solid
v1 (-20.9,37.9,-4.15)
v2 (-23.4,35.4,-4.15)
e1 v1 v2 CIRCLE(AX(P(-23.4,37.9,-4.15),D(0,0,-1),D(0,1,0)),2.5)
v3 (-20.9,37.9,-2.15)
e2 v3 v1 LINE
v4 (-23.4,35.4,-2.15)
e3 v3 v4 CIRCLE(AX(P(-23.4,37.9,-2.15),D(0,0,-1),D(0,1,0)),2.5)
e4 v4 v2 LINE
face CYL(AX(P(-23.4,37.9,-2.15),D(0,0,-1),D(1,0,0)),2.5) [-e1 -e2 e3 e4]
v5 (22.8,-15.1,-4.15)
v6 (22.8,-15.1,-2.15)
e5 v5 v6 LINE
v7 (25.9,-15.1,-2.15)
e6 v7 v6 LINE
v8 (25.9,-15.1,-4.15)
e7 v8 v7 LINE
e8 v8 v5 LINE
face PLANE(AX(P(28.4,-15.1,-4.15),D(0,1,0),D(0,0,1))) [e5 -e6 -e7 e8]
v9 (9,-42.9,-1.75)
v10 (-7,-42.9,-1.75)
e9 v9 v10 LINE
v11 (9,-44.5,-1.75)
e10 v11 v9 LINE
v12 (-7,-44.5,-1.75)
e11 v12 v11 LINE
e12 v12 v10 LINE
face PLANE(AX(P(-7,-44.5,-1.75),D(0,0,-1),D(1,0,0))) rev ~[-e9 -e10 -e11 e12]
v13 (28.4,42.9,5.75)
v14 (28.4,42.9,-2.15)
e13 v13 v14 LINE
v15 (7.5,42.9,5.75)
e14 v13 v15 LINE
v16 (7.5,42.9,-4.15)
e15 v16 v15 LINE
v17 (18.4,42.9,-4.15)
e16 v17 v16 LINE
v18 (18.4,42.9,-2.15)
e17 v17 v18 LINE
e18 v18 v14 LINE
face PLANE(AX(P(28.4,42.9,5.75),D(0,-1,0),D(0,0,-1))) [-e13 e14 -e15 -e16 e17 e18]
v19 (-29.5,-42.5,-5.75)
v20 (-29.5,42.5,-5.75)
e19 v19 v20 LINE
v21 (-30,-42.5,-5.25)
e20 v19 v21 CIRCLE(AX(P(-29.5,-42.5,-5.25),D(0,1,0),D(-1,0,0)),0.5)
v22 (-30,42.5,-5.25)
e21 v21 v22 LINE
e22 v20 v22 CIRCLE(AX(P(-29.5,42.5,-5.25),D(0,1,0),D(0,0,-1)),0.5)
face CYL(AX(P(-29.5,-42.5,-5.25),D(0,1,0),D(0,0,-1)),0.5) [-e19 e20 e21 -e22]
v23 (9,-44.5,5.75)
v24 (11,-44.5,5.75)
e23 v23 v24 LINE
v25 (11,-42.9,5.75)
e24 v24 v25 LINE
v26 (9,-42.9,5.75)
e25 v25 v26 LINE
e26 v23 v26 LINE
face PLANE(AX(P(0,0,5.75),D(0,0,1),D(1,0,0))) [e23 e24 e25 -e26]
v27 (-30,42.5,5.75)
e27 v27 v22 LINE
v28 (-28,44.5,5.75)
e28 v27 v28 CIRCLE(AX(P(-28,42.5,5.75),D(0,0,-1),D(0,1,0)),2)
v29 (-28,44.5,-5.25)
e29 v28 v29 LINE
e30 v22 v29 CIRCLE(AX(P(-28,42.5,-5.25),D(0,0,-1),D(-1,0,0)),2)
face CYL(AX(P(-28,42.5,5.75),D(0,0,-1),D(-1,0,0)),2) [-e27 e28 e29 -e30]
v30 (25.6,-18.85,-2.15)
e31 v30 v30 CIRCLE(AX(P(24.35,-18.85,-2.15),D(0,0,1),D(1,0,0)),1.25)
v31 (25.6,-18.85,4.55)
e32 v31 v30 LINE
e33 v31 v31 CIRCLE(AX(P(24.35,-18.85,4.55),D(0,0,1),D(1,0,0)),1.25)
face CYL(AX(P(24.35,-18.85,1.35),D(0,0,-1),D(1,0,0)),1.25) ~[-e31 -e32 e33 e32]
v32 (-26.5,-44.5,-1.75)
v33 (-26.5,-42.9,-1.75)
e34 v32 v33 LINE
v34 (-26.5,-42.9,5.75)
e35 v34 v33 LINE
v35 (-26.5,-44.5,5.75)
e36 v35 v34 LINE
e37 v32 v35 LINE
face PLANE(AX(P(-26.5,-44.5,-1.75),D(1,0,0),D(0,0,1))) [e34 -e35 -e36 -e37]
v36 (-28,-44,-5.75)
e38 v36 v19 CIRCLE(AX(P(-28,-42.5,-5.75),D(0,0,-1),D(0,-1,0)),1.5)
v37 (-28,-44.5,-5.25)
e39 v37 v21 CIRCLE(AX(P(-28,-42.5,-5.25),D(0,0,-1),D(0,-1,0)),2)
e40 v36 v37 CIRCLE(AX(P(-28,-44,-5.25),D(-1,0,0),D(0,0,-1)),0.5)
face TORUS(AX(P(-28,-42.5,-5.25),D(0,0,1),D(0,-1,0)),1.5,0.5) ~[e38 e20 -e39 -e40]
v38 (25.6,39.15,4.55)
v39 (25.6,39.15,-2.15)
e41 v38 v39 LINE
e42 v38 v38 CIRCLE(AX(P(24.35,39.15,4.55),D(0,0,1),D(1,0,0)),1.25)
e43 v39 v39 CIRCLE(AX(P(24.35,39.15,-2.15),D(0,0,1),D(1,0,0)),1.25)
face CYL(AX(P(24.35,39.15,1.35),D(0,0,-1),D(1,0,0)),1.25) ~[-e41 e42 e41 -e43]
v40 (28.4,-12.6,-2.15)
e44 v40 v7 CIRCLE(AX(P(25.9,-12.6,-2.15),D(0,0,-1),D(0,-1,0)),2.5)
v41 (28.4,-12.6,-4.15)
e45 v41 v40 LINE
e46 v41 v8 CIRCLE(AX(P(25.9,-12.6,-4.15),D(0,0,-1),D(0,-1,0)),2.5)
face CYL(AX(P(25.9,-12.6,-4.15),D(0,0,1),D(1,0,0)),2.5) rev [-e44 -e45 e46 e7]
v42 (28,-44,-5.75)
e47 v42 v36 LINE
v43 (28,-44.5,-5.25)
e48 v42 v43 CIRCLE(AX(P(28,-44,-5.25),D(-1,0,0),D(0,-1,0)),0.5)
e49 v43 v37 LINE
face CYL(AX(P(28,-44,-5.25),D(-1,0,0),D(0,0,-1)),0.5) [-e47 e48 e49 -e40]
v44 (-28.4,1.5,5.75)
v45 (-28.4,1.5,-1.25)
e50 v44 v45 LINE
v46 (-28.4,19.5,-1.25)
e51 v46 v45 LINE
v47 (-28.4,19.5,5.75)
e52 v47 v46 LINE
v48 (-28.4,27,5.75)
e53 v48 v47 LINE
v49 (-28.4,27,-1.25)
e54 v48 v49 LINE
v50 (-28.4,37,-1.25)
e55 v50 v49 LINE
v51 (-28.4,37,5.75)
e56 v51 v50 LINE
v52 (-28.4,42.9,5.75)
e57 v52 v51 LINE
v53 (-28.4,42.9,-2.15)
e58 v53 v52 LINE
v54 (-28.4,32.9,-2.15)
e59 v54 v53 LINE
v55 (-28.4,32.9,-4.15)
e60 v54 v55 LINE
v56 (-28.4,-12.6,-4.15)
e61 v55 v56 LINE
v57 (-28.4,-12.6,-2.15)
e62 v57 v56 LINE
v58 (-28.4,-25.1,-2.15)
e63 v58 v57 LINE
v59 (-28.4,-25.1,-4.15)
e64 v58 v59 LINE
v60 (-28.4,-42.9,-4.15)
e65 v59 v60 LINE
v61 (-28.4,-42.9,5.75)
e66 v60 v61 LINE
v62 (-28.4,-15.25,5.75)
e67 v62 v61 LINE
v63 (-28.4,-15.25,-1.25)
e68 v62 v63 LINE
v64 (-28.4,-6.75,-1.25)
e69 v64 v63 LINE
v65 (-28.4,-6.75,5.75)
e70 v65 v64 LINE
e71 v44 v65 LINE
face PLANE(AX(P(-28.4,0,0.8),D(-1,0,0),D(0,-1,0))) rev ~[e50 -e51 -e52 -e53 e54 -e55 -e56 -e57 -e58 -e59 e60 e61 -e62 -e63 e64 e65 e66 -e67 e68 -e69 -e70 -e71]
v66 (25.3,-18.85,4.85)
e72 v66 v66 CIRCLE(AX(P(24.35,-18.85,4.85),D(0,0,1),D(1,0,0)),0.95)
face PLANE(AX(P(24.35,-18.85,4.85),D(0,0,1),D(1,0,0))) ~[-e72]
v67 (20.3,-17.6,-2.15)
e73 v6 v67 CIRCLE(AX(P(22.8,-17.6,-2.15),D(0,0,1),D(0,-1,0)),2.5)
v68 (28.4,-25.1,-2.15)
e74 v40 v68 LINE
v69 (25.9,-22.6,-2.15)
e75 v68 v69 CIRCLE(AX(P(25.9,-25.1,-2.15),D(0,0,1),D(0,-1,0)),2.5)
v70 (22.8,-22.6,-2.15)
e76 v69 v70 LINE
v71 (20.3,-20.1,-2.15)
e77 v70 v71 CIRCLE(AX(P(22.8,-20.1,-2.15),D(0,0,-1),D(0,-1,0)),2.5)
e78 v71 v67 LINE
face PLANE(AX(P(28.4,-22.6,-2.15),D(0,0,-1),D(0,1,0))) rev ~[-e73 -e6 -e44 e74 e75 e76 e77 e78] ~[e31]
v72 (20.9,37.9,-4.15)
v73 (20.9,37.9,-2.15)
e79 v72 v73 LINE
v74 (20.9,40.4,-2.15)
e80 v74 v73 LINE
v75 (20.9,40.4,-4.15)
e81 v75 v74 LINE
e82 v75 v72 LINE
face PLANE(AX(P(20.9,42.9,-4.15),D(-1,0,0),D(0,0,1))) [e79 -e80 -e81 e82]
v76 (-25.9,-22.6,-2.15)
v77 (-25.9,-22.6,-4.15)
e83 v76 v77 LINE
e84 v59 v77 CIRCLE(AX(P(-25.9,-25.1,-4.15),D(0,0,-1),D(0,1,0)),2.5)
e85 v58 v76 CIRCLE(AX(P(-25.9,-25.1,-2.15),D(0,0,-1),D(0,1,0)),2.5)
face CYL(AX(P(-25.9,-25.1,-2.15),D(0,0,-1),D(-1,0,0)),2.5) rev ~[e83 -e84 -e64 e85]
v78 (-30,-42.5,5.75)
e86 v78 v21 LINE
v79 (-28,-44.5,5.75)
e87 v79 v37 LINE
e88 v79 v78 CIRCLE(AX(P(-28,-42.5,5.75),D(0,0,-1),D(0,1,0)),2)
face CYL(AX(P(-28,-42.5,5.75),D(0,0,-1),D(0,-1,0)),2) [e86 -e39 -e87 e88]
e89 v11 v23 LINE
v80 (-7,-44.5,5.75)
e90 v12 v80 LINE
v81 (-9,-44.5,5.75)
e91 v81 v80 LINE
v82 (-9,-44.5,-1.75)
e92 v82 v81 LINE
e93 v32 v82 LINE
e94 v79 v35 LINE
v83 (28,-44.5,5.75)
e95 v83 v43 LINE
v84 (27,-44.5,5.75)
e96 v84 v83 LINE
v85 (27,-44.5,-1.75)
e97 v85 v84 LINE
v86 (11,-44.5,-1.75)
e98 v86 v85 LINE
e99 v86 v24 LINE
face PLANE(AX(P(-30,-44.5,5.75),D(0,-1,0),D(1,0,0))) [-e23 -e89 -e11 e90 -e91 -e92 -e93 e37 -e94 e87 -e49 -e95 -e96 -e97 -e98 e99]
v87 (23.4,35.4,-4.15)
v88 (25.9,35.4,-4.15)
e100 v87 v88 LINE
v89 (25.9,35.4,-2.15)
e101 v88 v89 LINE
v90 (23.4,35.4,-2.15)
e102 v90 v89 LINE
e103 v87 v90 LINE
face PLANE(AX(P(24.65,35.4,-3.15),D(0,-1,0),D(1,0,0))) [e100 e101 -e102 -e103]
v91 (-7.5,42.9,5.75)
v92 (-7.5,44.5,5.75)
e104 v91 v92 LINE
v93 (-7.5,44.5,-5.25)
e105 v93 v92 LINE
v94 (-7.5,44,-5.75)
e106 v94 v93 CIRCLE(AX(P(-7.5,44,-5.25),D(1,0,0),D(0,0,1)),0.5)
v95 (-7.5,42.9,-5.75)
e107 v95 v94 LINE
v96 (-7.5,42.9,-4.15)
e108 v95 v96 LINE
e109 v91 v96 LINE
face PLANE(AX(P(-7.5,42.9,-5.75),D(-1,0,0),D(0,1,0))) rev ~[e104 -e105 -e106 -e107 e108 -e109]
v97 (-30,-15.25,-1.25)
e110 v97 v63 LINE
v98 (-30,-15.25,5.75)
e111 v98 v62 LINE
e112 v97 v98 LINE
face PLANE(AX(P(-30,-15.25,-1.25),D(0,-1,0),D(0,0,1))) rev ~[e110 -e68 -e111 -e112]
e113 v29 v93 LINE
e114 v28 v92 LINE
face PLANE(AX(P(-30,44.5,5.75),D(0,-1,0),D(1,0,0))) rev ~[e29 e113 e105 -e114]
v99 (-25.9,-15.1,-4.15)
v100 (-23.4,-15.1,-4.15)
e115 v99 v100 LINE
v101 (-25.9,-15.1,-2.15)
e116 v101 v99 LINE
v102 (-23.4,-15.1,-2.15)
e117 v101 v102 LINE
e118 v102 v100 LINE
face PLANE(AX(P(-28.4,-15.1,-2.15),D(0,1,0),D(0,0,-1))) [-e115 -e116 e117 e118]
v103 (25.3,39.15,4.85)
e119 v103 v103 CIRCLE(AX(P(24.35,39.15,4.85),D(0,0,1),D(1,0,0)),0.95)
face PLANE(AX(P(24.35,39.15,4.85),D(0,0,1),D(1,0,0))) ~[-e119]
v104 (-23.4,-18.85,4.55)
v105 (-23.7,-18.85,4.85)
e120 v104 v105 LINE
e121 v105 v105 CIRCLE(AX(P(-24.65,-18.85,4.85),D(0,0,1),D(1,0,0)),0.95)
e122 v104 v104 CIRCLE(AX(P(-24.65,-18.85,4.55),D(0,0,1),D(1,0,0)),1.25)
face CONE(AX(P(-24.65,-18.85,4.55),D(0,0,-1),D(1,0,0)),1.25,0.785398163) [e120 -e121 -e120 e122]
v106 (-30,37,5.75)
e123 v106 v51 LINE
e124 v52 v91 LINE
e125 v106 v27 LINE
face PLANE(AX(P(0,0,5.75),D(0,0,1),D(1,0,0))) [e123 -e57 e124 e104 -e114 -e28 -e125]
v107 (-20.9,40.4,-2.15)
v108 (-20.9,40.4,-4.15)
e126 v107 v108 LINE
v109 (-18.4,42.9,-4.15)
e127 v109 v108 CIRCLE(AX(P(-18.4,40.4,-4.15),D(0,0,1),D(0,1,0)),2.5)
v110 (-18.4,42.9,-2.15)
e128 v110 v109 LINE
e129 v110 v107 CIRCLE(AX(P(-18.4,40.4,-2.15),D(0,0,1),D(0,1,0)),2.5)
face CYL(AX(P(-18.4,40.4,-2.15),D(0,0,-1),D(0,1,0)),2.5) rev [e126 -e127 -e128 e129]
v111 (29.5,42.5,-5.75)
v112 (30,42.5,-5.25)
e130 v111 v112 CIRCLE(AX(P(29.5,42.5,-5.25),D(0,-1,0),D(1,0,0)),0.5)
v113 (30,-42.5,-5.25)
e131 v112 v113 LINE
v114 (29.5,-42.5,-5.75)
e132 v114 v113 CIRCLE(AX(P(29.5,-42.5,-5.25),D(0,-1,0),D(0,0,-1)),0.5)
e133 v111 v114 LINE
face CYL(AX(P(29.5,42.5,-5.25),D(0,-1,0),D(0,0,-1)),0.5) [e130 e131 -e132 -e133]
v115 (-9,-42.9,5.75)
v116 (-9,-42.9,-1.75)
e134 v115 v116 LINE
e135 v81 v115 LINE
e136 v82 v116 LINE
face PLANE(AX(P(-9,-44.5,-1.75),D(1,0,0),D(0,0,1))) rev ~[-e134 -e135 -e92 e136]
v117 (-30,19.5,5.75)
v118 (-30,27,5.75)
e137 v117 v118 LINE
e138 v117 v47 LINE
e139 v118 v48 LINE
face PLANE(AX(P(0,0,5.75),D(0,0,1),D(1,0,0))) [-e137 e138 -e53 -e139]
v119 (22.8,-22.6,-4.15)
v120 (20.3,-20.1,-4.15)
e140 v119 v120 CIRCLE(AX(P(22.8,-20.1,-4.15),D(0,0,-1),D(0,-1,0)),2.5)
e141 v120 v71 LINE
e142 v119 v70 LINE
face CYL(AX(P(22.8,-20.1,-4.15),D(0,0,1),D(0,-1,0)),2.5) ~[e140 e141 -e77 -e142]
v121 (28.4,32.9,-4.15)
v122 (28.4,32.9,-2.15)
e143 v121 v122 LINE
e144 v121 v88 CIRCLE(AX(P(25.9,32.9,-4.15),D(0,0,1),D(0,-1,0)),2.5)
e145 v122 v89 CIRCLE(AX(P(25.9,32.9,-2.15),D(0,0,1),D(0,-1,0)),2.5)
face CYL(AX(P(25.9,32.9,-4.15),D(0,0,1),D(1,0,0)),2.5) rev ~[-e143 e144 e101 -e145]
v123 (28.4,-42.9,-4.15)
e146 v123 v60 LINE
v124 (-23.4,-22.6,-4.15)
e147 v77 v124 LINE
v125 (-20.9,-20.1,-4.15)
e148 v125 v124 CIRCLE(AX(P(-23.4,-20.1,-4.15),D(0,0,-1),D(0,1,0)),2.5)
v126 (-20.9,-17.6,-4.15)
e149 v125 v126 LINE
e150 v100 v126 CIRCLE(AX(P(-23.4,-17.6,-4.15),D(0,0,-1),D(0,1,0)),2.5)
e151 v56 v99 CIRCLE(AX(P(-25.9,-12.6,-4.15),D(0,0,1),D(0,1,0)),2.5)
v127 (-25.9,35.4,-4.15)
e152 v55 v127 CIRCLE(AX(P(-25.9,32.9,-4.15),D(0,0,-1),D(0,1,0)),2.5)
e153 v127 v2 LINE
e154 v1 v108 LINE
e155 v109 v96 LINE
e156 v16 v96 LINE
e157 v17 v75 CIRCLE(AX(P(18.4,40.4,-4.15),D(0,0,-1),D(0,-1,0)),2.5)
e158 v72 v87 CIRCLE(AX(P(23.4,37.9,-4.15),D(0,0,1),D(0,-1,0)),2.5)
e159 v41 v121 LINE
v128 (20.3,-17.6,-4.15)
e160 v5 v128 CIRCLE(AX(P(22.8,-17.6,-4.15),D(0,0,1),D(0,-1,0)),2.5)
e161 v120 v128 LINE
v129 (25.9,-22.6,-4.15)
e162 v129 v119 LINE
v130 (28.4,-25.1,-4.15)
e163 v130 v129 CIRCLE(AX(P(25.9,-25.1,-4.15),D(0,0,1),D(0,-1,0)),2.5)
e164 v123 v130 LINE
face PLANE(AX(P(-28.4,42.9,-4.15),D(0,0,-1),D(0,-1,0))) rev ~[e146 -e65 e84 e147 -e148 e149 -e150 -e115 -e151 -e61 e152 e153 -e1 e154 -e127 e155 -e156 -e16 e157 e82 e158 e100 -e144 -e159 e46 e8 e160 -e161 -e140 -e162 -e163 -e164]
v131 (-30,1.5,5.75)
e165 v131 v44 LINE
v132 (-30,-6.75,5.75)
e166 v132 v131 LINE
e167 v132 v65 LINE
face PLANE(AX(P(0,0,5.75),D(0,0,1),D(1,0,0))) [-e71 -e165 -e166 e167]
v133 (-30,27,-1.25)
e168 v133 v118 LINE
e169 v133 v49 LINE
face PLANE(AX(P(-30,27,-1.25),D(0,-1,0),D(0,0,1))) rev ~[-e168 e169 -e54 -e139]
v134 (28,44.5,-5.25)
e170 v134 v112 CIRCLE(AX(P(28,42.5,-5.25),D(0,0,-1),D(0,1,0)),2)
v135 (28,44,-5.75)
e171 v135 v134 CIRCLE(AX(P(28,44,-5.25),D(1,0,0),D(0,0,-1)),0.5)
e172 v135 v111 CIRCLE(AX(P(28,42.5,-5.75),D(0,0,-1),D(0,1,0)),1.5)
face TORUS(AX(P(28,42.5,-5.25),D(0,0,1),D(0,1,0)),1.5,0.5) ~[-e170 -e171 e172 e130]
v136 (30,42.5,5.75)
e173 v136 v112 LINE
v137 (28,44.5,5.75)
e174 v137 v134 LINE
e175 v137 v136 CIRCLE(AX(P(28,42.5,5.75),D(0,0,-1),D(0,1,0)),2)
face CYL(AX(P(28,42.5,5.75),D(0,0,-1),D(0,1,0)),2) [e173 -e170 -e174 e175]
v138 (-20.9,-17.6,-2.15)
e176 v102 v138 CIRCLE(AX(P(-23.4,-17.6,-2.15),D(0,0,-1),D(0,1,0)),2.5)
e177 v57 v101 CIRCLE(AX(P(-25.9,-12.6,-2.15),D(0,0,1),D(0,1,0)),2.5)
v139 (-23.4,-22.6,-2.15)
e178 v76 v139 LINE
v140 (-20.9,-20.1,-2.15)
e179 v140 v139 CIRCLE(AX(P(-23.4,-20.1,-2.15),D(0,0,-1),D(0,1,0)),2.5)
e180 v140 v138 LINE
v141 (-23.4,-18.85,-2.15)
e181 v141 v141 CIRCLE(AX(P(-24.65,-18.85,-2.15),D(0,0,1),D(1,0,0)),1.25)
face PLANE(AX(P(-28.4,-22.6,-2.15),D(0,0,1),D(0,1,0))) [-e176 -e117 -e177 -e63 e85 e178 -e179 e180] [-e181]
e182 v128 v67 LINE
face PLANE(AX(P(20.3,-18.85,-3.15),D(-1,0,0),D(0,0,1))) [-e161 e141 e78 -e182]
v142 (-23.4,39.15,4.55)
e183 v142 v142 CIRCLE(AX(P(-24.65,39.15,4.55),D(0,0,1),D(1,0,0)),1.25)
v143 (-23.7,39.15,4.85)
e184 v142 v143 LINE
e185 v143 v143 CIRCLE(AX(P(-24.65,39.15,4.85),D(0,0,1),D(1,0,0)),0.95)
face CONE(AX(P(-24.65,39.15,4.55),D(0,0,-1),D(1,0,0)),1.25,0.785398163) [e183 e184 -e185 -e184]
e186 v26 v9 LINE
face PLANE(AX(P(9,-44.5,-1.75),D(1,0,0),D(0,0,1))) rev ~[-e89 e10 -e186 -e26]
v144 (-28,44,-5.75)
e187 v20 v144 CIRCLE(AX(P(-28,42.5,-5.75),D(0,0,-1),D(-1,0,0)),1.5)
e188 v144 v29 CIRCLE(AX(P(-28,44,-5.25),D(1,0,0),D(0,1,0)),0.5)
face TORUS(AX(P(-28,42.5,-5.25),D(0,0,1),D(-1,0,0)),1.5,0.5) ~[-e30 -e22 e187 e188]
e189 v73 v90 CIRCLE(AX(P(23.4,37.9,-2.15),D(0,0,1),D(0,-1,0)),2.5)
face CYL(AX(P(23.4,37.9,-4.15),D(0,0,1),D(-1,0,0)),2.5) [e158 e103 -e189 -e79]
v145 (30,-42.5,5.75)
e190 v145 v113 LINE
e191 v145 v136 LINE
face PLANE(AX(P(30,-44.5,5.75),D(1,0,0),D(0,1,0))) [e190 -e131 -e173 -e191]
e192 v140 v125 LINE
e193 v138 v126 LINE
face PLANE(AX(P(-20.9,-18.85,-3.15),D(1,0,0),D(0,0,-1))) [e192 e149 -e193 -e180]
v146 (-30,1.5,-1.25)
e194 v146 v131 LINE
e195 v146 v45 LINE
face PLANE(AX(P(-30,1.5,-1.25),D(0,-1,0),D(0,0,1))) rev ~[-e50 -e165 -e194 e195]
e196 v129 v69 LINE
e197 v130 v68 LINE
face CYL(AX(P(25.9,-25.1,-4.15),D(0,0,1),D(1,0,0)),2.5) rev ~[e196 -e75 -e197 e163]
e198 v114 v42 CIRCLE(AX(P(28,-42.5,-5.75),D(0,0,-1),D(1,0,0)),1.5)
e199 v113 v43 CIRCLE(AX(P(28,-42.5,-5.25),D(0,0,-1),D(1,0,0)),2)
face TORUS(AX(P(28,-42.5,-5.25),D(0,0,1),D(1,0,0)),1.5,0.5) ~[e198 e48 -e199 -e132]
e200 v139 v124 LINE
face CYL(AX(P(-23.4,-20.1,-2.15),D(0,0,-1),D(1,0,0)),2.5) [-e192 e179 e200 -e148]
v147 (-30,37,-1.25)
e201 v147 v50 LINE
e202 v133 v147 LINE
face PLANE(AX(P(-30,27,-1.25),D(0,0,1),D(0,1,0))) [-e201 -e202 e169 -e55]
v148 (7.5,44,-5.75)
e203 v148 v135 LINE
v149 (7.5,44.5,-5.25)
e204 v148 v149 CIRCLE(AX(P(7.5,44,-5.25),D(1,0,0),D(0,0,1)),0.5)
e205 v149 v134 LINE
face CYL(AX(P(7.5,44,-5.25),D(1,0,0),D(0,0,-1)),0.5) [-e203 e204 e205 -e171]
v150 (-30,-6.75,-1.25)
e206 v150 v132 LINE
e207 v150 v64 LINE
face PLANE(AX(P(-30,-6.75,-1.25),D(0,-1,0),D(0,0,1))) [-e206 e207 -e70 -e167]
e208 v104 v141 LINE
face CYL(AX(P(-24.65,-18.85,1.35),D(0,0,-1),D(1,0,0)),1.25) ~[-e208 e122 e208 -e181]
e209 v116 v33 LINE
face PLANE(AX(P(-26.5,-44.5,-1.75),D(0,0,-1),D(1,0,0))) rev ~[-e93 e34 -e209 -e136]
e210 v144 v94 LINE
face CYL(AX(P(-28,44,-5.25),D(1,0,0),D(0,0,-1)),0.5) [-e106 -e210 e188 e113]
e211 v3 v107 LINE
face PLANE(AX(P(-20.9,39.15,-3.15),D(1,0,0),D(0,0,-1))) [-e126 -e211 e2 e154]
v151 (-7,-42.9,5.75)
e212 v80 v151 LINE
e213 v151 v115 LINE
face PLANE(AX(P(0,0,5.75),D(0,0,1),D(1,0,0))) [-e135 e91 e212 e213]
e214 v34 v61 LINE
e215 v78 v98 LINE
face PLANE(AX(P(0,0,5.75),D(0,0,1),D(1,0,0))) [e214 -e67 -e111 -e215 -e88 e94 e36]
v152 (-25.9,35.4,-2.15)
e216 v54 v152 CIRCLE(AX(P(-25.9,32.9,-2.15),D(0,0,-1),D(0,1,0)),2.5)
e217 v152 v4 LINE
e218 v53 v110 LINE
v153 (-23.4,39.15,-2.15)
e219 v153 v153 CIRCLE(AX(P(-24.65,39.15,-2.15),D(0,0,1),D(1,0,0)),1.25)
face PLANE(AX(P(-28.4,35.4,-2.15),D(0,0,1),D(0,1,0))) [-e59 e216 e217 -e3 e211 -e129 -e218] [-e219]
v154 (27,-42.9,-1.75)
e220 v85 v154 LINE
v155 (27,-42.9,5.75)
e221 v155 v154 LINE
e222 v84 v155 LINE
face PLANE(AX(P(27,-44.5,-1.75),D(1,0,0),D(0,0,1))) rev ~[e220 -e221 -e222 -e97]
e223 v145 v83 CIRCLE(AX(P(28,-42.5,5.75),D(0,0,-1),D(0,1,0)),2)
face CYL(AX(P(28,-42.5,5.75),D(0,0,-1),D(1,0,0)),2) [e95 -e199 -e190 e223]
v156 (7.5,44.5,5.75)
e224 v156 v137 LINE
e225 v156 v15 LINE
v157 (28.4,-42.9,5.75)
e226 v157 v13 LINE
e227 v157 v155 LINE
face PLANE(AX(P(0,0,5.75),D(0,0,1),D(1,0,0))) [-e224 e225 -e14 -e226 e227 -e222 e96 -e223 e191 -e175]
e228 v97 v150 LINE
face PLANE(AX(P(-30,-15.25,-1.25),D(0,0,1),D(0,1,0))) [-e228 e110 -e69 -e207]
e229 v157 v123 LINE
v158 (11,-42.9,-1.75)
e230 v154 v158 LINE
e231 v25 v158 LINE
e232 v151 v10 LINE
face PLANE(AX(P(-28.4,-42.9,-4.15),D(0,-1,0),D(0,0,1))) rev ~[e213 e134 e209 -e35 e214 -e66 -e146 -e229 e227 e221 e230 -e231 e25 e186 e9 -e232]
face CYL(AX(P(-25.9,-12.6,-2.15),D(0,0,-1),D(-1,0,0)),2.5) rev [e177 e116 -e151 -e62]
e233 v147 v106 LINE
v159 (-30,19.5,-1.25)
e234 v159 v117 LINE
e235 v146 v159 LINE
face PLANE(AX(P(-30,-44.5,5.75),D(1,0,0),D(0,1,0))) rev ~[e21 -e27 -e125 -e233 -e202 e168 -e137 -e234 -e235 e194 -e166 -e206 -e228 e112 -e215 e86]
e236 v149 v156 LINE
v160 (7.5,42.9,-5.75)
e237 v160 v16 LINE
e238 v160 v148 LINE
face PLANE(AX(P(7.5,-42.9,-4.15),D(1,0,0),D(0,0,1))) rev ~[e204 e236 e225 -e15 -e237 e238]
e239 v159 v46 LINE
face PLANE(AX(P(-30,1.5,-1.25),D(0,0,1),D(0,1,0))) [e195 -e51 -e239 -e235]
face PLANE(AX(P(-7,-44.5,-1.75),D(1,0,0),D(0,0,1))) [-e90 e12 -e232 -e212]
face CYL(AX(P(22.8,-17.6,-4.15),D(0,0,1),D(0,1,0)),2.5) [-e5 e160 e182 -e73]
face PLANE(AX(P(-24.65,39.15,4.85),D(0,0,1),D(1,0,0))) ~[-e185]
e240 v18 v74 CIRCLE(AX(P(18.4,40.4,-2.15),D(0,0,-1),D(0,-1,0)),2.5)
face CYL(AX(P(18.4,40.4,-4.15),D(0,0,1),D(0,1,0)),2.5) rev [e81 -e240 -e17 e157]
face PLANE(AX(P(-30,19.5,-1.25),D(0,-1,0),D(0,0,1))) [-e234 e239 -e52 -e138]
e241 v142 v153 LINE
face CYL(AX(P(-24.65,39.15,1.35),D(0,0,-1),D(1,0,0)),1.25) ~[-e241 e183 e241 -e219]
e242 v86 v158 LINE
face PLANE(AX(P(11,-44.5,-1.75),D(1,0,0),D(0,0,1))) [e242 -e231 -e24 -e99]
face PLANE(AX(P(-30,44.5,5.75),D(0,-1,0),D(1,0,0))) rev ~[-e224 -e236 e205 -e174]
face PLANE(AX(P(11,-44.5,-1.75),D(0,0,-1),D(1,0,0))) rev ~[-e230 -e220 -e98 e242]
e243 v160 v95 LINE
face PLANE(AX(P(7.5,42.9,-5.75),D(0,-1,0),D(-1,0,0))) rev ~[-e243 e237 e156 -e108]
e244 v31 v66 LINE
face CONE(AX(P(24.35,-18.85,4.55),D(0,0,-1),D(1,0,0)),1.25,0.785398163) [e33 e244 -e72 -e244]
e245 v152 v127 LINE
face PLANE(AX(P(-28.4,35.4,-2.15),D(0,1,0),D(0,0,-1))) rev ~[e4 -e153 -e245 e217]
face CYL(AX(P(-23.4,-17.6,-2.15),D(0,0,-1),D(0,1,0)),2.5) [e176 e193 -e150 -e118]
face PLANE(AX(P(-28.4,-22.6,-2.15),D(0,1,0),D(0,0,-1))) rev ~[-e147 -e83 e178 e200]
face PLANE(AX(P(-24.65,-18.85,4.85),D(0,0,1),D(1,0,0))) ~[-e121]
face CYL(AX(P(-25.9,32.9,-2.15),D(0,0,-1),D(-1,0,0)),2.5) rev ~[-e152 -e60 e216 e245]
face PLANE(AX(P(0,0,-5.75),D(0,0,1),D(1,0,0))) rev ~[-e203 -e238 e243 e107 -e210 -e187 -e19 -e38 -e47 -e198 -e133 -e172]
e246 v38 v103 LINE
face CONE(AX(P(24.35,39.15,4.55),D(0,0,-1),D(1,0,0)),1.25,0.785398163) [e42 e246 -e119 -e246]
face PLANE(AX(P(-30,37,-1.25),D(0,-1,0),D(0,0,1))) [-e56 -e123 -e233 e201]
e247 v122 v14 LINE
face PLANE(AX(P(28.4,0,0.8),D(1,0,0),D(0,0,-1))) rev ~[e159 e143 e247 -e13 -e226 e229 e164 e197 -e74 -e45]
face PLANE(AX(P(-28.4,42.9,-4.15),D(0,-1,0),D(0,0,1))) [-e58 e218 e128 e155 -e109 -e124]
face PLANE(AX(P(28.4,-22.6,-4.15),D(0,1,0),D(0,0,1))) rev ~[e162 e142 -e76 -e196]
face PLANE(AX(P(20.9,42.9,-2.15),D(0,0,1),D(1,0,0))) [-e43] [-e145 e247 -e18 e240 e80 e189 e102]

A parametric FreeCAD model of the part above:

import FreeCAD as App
import Part
import Sketcher

V = App.Vector
Q = App.Units.Quantity


def edges_at(feature, points):
    """Names of the edges that pass closest to the given points."""
    edges = feature.Shape.Edges
    near = lambda p: min(range(len(edges)), key=lambda i: edges[i].distToShape(Part.Vertex(*p))[0])
    return sorted({f"Edge{near(p) + 1}" for p in points})

doc = App.newDocument("Part")
body = doc.addObject("PartDesign::Body", "Body")

# Sketch on XY plane
sketch1 = body.newObject("Sketcher::SketchObject", "Sketch")
sketch1.AttachmentSupport = (doc.getObject("XY_Plane"), [""])
sketch1.MapMode = "FlatFace"
sketch1.AttachmentOffset = App.Placement(V(0, 0, 5.75), App.Rotation())
sketch1.addGeometry([
    Part.LineSegment(V(-30, 44, 0), V(-30, -44, 0)),
    Part.LineSegment(V(-30, -44, 0), V(30, -44, 0)),
    Part.LineSegment(V(30, -44, 0), V(30, 44, 0)),
    Part.LineSegment(V(30, 44, 0), V(-30, 44, 0)),
], False)
sketch1.addConstraint([
    Sketcher.Constraint("Coincident", 0, 2, 1, 1),
    Sketcher.Constraint("Coincident", 1, 2, 2, 1),
    Sketcher.Constraint("Coincident", 2, 2, 3, 1),
    Sketcher.Constraint("Coincident", 3, 2, 0, 1),
    Sketcher.Constraint("Vertical", 0),
    Sketcher.Constraint("Horizontal", 1),
    Sketcher.Constraint("Vertical", 2),
    Sketcher.Constraint("Horizontal", 3),
    Sketcher.Constraint("Symmetric", 0, 2, 2, 2, -1, 1),
    Sketcher.Constraint("DistanceX", 1, 1, 1, 2, Q("60 mm")),
    Sketcher.Constraint("DistanceY", 0, 2, 0, 1, Q("89 mm")),
])
pad1 = body.newObject("PartDesign::Pad", "Pad")
pad1.Profile = sketch1
pad1.Length = 11.5
pad1.Reversed = True

# Sketch on XY plane
sketch2 = body.newObject("Sketcher::SketchObject", "Sketch001")
sketch2.AttachmentSupport = (doc.getObject("XY_Plane"), [""])
sketch2.MapMode = "FlatFace"
sketch2.AttachmentOffset = App.Placement(V(0, 0, -5.75), App.Rotation())
sketch2.addGeometry([
    Part.LineSegment(V(7.5, 44.5, 0), V(7.5, 42.9, 0)),
    Part.LineSegment(V(7.5, 42.9, 0), V(-7.5, 42.9, 0)),
    Part.LineSegment(V(-7.5, 42.9, 0), V(-7.5, 44.5, 0)),
    Part.LineSegment(V(-7.5, 44.5, 0), V(7.5, 44.5, 0)),
], False)
sketch2.addConstraint([
    Sketcher.Constraint("Coincident", 0, 2, 1, 1),
    Sketcher.Constraint("Coincident", 1, 2, 2, 1),
    Sketcher.Constraint("Coincident", 2, 2, 3, 1),
    Sketcher.Constraint("Coincident", 3, 2, 0, 1),
    Sketcher.Constraint("Vertical", 0),
    Sketcher.Constraint("Horizontal", 1),
    Sketcher.Constraint("Vertical", 2),
    Sketcher.Constraint("Horizontal", 3),
    Sketcher.Constraint("DistanceX", 1, 2, 1, 1, Q("15 mm")),
    Sketcher.Constraint("DistanceY", 0, 2, 0, 1, Q("1.6 mm")),
    Sketcher.Constraint("DistanceX", -1, 1, 0, 2, Q("7.5 mm")),
    Sketcher.Constraint("DistanceY", -1, 1, 0, 2, Q("42.9 mm")),
])
pocket1 = body.newObject("PartDesign::Pocket", "Pocket")
pocket1.Profile = sketch2
pocket1.Type = "ThroughAll"
pocket1.Reversed = True

# Sketch on XZ plane
sketch3 = body.newObject("Sketcher::SketchObject", "Sketch002")
sketch3.AttachmentSupport = (doc.getObject("XZ_Plane"), [""])
sketch3.MapMode = "FlatFace"
sketch3.AttachmentOffset = App.Placement(V(0, 0, 42.9), App.Rotation())
sketch3.addGeometry([
    Part.LineSegment(V(-8, 6, 0), V(-8, -4, 0)),
    Part.LineSegment(V(-8, -4, 0), V(8, -4, 0)),
    Part.LineSegment(V(8, -4, 0), V(8, 6, 0)),
    Part.LineSegment(V(8, 6, 0), V(-8, 6, 0)),
], False)
sketch3.addConstraint([
    Sketcher.Constraint("Coincident", 0, 2, 1, 1),
    Sketcher.Constraint("Coincident", 1, 2, 2, 1),
    Sketcher.Constraint("Coincident", 2, 2, 3, 1),
    Sketcher.Constraint("Coincident", 3, 2, 0, 1),
    Sketcher.Constraint("Vertical", 0),
    Sketcher.Constraint("Horizontal", 1),
    Sketcher.Constraint("Vertical", 2),
    Sketcher.Constraint("Horizontal", 3),
    Sketcher.Constraint("DistanceX", 1, 1, 1, 2, Q("15 mm")),
    Sketcher.Constraint("DistanceY", 0, 2, 0, 1, Q("9.9 mm")),
    Sketcher.Constraint("DistanceX", 0, 2, -1, 1, Q("7.5 mm")),
    Sketcher.Constraint("DistanceY", 0, 2, -1, 1, Q("4.15 mm")),
])
pocket2 = body.newObject("PartDesign::Pocket", "Pocket001")
pocket2.Profile = sketch3
pocket2.Type = "UpToFirst"

# Sketch on YZ plane
sketch4 = body.newObject("Sketcher::SketchObject", "Sketch003")
sketch4.AttachmentSupport = (doc.getObject("YZ_Plane"), [""])
sketch4.MapMode = "FlatFace"
sketch4.AttachmentOffset = App.Placement(V(0, 0, -28.4), App.Rotation())
sketch4.addGeometry([
    Part.LineSegment(V(43, 6, 0), V(43, -4, 0)),
    Part.LineSegment(V(43, -4, 0), V(-43, -4, 0)),
    Part.LineSegment(V(-43, -4, 0), V(-43, 6, 0)),
    Part.LineSegment(V(-43, 6, 0), V(43, 6, 0)),
], False)
sketch4.addConstraint([
    Sketcher.Constraint("Coincident", 0, 2, 1, 1),
    Sketcher.Constraint("Coincident", 1, 2, 2, 1),
    Sketcher.Constraint("Coincident", 2, 2, 3, 1),
    Sketcher.Constraint("Coincident", 3, 2, 0, 1),
    Sketcher.Constraint("Vertical", 0),
    Sketcher.Constraint("Horizontal", 1),
    Sketcher.Constraint("Vertical", 2),
    Sketcher.Constraint("Horizontal", 3),
    Sketcher.Constraint("DistanceX", 1, 2, 1, 1, Q("85.8 mm")),
    Sketcher.Constraint("DistanceY", 0, 2, 0, 1, Q("9.9 mm")),
    Sketcher.Constraint("DistanceX", -1, 1, 0, 2, Q("42.9 mm")),
    Sketcher.Constraint("DistanceY", 0, 2, -1, 1, Q("4.15 mm")),
])
pocket3 = body.newObject("PartDesign::Pocket", "Pocket002")
pocket3.Profile = sketch4
pocket3.Type = "UpToFirst"
pocket3.Reversed = True

# Sketch on YZ plane
sketch5 = body.newObject("Sketcher::SketchObject", "Sketch004")
sketch5.AttachmentSupport = (doc.getObject("YZ_Plane"), [""])
sketch5.MapMode = "FlatFace"
sketch5.AttachmentOffset = App.Placement(V(0, 0, 28.4), App.Rotation())
sketch5.addGeometry([
    Part.LineSegment(V(43, 6, 0), V(-43, 6, 0)),
    Part.LineSegment(V(-43, 6, 0), V(-43, -4, 0)),
    Part.LineSegment(V(-43, -4, 0), V(43, -4, 0)),
    Part.LineSegment(V(43, -4, 0), V(43, 6, 0)),
], False)
sketch5.addConstraint([
    Sketcher.Constraint("Coincident", 0, 2, 1, 1),
    Sketcher.Constraint("Coincident", 1, 2, 2, 1),
    Sketcher.Constraint("Coincident", 2, 2, 3, 1),
    Sketcher.Constraint("Coincident", 3, 2, 0, 1),
    Sketcher.Constraint("Horizontal", 0),
    Sketcher.Constraint("Vertical", 1),
    Sketcher.Constraint("Horizontal", 2),
    Sketcher.Constraint("Vertical", 3),
    Sketcher.Constraint("DistanceX", 0, 2, 0, 1, Q("85.8 mm")),
    Sketcher.Constraint("DistanceY", 1, 2, 1, 1, Q("9.9 mm")),
    Sketcher.Constraint("DistanceX", 0, 2, -1, 1, Q("42.9 mm")),
    Sketcher.Constraint("DistanceY", -1, 1, 0, 2, Q("5.75 mm")),
])
pocket4 = body.newObject("PartDesign::Pocket", "Pocket003")
pocket4.Profile = sketch5
pocket4.Type = "UpToFirst"

# Sketch on YZ plane
sketch6 = body.newObject("Sketcher::SketchObject", "Sketch005")
sketch6.AttachmentSupport = (doc.getObject("YZ_Plane"), [""])
sketch6.MapMode = "FlatFace"
sketch6.AttachmentOffset = App.Placement(V(0, 0, -30), App.Rotation())
sketch6.addGeometry([
    Part.LineSegment(V(37, -1, 0), V(27, -1, 0)),
    Part.LineSegment(V(27, -1, 0), V(27, 6, 0)),
    Part.LineSegment(V(27, 6, 0), V(37, 6, 0)),
    Part.LineSegment(V(37, 6, 0), V(37, -1, 0)),
], False)
sketch6.addConstraint([
    Sketcher.Constraint("Coincident", 0, 2, 1, 1),
    Sketcher.Constraint("Coincident", 1, 2, 2, 1),
    Sketcher.Constraint("Coincident", 2, 2, 3, 1),
    Sketcher.Constraint("Coincident", 3, 2, 0, 1),
    Sketcher.Constraint("Horizontal", 0),
    Sketcher.Constraint("Vertical", 1),
    Sketcher.Constraint("Horizontal", 2),
    Sketcher.Constraint("Vertical", 3),
    Sketcher.Constraint("DistanceX", 0, 2, 0, 1, Q("10 mm")),
    Sketcher.Constraint("DistanceY", 1, 1, 1, 2, Q("7 mm")),
    Sketcher.Constraint("DistanceX", -1, 1, 0, 2, Q("27 mm")),
    Sketcher.Constraint("DistanceY", 0, 2, -1, 1, Q("1.25 mm")),
])
pocket5 = body.newObject("PartDesign::Pocket", "Pocket004")
pocket5.Profile = sketch6
pocket5.Type = "UpToFirst"
pocket5.Reversed = True

# Sketch on YZ plane
sketch7 = body.newObject("Sketcher::SketchObject", "Sketch006")
sketch7.AttachmentSupport = (doc.getObject("YZ_Plane"), [""])
sketch7.MapMode = "FlatFace"
sketch7.AttachmentOffset = App.Placement(V(0, 0, -30), App.Rotation())
sketch7.addGeometry([
    Part.LineSegment(V(20, -1, 0), V(2, -1, 0)),
    Part.LineSegment(V(2, -1, 0), V(2, 6, 0)),
    Part.LineSegment(V(2, 6, 0), V(20, 6, 0)),
    Part.LineSegment(V(20, 6, 0), V(20, -1, 0)),
], False)
sketch7.addConstraint([
    Sketcher.Constraint("Coincident", 0, 2, 1, 1),
    Sketcher.Constraint("Coincident", 1, 2, 2, 1),
    Sketcher.Constraint("Coincident", 2, 2, 3, 1),
    Sketcher.Constraint("Coincident", 3, 2, 0, 1),
    Sketcher.Constraint("Horizontal", 0),
    Sketcher.Constraint("Vertical", 1),
    Sketcher.Constraint("Horizontal", 2),
    Sketcher.Constraint("Vertical", 3),
    Sketcher.Constraint("DistanceX", 0, 2, 0, 1, Q("18 mm")),
    Sketcher.Constraint("DistanceY", 1, 1, 1, 2, Q("7 mm")),
    Sketcher.Constraint("DistanceX", -1, 1, 0, 2, Q("1.5 mm")),
    Sketcher.Constraint("DistanceY", 0, 2, -1, 1, Q("1.25 mm")),
])
pocket6 = body.newObject("PartDesign::Pocket", "Pocket005")
pocket6.Profile = sketch7
pocket6.Type = "UpToFirst"
pocket6.Reversed = True

# Sketch on XZ plane
sketch8 = body.newObject("Sketcher::SketchObject", "Sketch007")
sketch8.AttachmentSupport = (doc.getObject("XZ_Plane"), [""])
sketch8.MapMode = "FlatFace"
sketch8.AttachmentOffset = App.Placement(V(0, 0, 44.5), App.Rotation())
sketch8.addGeometry([
    Part.LineSegment(V(-26, 6, 0), V(-26, -2, 0)),
    Part.LineSegment(V(-26, -2, 0), V(-9, -2, 0)),
    Part.LineSegment(V(-9, -2, 0), V(-9, 6, 0)),
    Part.LineSegment(V(-9, 6, 0), V(-26, 6, 0)),
], False)
sketch8.addConstraint([
    Sketcher.Constraint("Coincident", 0, 2, 1, 1),
    Sketcher.Constraint("Coincident", 1, 2, 2, 1),
    Sketcher.Constraint("Coincident", 2, 2, 3, 1),
    Sketcher.Constraint("Coincident", 3, 2, 0, 1),
    Sketcher.Constraint("Vertical", 0),
    Sketcher.Constraint("Horizontal", 1),
    Sketcher.Constraint("Vertical", 2),
    Sketcher.Constraint("Horizontal", 3),
    Sketcher.Constraint("DistanceX", 1, 1, 1, 2, Q("17.5 mm")),
    Sketcher.Constraint("DistanceY", 0, 2, 0, 1, Q("7.5 mm")),
    Sketcher.Constraint("DistanceX", 1, 2, -1, 1, Q("9 mm")),
    Sketcher.Constraint("DistanceY", 0, 2, -1, 1, Q("1.75 mm")),
])
pocket7 = body.newObject("PartDesign::Pocket", "Pocket006")
pocket7.Profile = sketch8
pocket7.Type = "UpToFirst"

# Sketch on XZ plane
sketch9 = body.newObject("Sketcher::SketchObject", "Sketch008")
sketch9.AttachmentSupport = (doc.getObject("XZ_Plane"), [""])
sketch9.MapMode = "FlatFace"
sketch9.AttachmentOffset = App.Placement(V(0, 0, 44.5), App.Rotation())
sketch9.addGeometry([
    Part.LineSegment(V(-7, 6, 0), V(-7, -2, 0)),
    Part.LineSegment(V(-7, -2, 0), V(9, -2, 0)),
    Part.LineSegment(V(9, -2, 0), V(9, 6, 0)),
    Part.LineSegment(V(9, 6, 0), V(-7, 6, 0)),
], False)
sketch9.addConstraint([
    Sketcher.Constraint("Coincident", 0, 2, 1, 1),
    Sketcher.Constraint("Coincident", 1, 2, 2, 1),
    Sketcher.Constraint("Coincident", 2, 2, 3, 1),
    Sketcher.Constraint("Coincident", 3, 2, 0, 1),
    Sketcher.Constraint("Vertical", 0),
    Sketcher.Constraint("Horizontal", 1),
    Sketcher.Constraint("Vertical", 2),
    Sketcher.Constraint("Horizontal", 3),
    Sketcher.Constraint("DistanceX", 1, 1, 1, 2, Q("16 mm")),
    Sketcher.Constraint("DistanceY", 0, 2, 0, 1, Q("7.5 mm")),
    Sketcher.Constraint("DistanceX", 0, 2, -1, 1, Q("7 mm")),
    Sketcher.Constraint("DistanceY", 0, 2, -1, 1, Q("1.75 mm")),
])
pocket8 = body.newObject("PartDesign::Pocket", "Pocket007")
pocket8.Profile = sketch9
pocket8.Type = "UpToFirst"

# Sketch on XZ plane
sketch10 = body.newObject("Sketcher::SketchObject", "Sketch009")
sketch10.AttachmentSupport = (doc.getObject("XZ_Plane"), [""])
sketch10.MapMode = "FlatFace"
sketch10.AttachmentOffset = App.Placement(V(0, 0, 44.5), App.Rotation())
sketch10.addGeometry([
    Part.LineSegment(V(11, 6, 0), V(11, -2, 0)),
    Part.LineSegment(V(11, -2, 0), V(27, -2, 0)),
    Part.LineSegment(V(27, -2, 0), V(27, 6, 0)),
    Part.LineSegment(V(27, 6, 0), V(11, 6, 0)),
], False)
sketch10.addConstraint([
    Sketcher.Constraint("Coincident", 0, 2, 1, 1),
    Sketcher.Constraint("Coincident", 1, 2, 2, 1),
    Sketcher.Constraint("Coincident", 2, 2, 3, 1),
    Sketcher.Constraint("Coincident", 3, 2, 0, 1),
    Sketcher.Constraint("Vertical", 0),
    Sketcher.Constraint("Horizontal", 1),
    Sketcher.Constraint("Vertical", 2),
    Sketcher.Constraint("Horizontal", 3),
    Sketcher.Constraint("DistanceX", 1, 1, 1, 2, Q("16 mm")),
    Sketcher.Constraint("DistanceY", 0, 2, 0, 1, Q("7.5 mm")),
    Sketcher.Constraint("DistanceX", -1, 1, 0, 2, Q("11 mm")),
    Sketcher.Constraint("DistanceY", 0, 2, -1, 1, Q("1.75 mm")),
])
pocket9 = body.newObject("PartDesign::Pocket", "Pocket008")
pocket9.Profile = sketch10
pocket9.Type = "UpToFirst"

# Sketch on YZ plane
sketch11 = body.newObject("Sketcher::SketchObject", "Sketch010")
sketch11.AttachmentSupport = (doc.getObject("YZ_Plane"), [""])
sketch11.MapMode = "FlatFace"
sketch11.AttachmentOffset = App.Placement(V(0, 0, -30), App.Rotation())
sketch11.addGeometry([
    Part.LineSegment(V(-7, -1, 0), V(-15, -1, 0)),
    Part.LineSegment(V(-15, -1, 0), V(-15, 6, 0)),
    Part.LineSegment(V(-15, 6, 0), V(-7, 6, 0)),
    Part.LineSegment(V(-7, 6, 0), V(-7, -1, 0)),
], False)
sketch11.addConstraint([
    Sketcher.Constraint("Coincident", 0, 2, 1, 1),
    Sketcher.Constraint("Coincident", 1, 2, 2, 1),
    Sketcher.Constraint("Coincident", 2, 2, 3, 1),
    Sketcher.Constraint("Coincident", 3, 2, 0, 1),
    Sketcher.Constraint("Horizontal", 0),
    Sketcher.Constraint("Vertical", 1),
    Sketcher.Constraint("Horizontal", 2),
    Sketcher.Constraint("Vertical", 3),
    Sketcher.Constraint("DistanceY", 1, 1, 1, 2, Q("7 mm")),
    Sketcher.Constraint("DistanceX", 0, 2, 0, 1, Q("8.5 mm")),
    Sketcher.Constraint("DistanceX", 0, 2, -1, 1, Q("15.25 mm")),
    Sketcher.Constraint("DistanceY", 0, 2, -1, 1, Q("1.25 mm")),
])
pocket10 = body.newObject("PartDesign::Pocket", "Pocket009")
pocket10.Profile = sketch11
pocket10.Type = "UpToFirst"
pocket10.Reversed = True

# Sketch on YZ plane
sketch12 = body.newObject("Sketcher::SketchObject", "Sketch011")
sketch12.AttachmentSupport = (doc.getObject("YZ_Plane"), [""])
sketch12.MapMode = "FlatFace"
sketch12.AttachmentOffset = App.Placement(V(0, 0, -28.4), App.Rotation())
sketch12.addGeometry([
    Part.LineSegment(V(42.9, -2.1, 0), V(35.4, -2.1, 0)),
    Part.LineSegment(V(35.4, -2.1, 0), V(35.4, -4.2, 0)),
    Part.LineSegment(V(35.4, -4.2, 0), V(42.9, -4.2, 0)),
    Part.LineSegment(V(42.9, -4.2, 0), V(42.9, -2.1, 0)),
], False)
sketch12.addConstraint([
    Sketcher.Constraint("Coincident", 0, 2, 1, 1),
    Sketcher.Constraint("Coincident", 1, 2, 2, 1),
    Sketcher.Constraint("Coincident", 2, 2, 3, 1),
    Sketcher.Constraint("Coincident", 3, 2, 0, 1),
    Sketcher.Constraint("Horizontal", 0),
    Sketcher.Constraint("Vertical", 1),
    Sketcher.Constraint("Horizontal", 2),
    Sketcher.Constraint("Vertical", 3),
    Sketcher.Constraint("DistanceY", 1, 2, 1, 1, Q("2 mm")),
    Sketcher.Constraint("DistanceX", 0, 2, 0, 1, Q("7.5 mm")),
    Sketcher.Constraint("DistanceX", -1, 1, 0, 2, Q("35.4 mm")),
    Sketcher.Constraint("DistanceY", 0, 2, -1, 1, Q("2.15 mm")),
])
pad2 = body.newObject("PartDesign::Pad", "Pad001")
pad2.Profile = sketch12
pad2.Length = 7.5

# Sketch on XZ plane
sketch13 = body.newObject("Sketcher::SketchObject", "Sketch012")
sketch13.AttachmentSupport = (doc.getObject("XZ_Plane"), [""])
sketch13.MapMode = "FlatFace"
sketch13.AttachmentOffset = App.Placement(V(0, 0, -42.9), App.Rotation())
sketch13.addGeometry([
    Part.LineSegment(V(20.9, -2.1, 0), V(20.9, -4.2, 0)),
    Part.LineSegment(V(20.9, -4.2, 0), V(28.4, -4.2, 0)),
    Part.LineSegment(V(28.4, -4.2, 0), V(28.4, -2.1, 0)),
    Part.LineSegment(V(28.4, -2.1, 0), V(20.9, -2.1, 0)),
], False)
sketch13.addConstraint([
    Sketcher.Constraint("Coincident", 0, 2, 1, 1),
    Sketcher.Constraint("Coincident", 1, 2, 2, 1),
    Sketcher.Constraint("Coincident", 2, 2, 3, 1),
    Sketcher.Constraint("Coincident", 3, 2, 0, 1),
    Sketcher.Constraint("Vertical", 0),
    Sketcher.Constraint("Horizontal", 1),
    Sketcher.Constraint("Vertical", 2),
    Sketcher.Constraint("Horizontal", 3),
    Sketcher.Constraint("DistanceY", 0, 2, 0, 1, Q("2 mm")),
    Sketcher.Constraint("DistanceX", 1, 1, 1, 2, Q("7.5 mm")),
    Sketcher.Constraint("DistanceX", -1, 1, 0, 2, Q("20.9 mm")),
    Sketcher.Constraint("DistanceY", 0, 2, -1, 1, Q("4.15 mm")),
])
pad3 = body.newObject("PartDesign::Pad", "Pad002")
pad3.Profile = sketch13
pad3.Length = 7.5

# Sketch on YZ plane
sketch14 = body.newObject("Sketcher::SketchObject", "Sketch013")
sketch14.AttachmentSupport = (doc.getObject("YZ_Plane"), [""])
sketch14.MapMode = "FlatFace"
sketch14.AttachmentOffset = App.Placement(V(0, 0, 28.4), App.Rotation())
sketch14.addGeometry([
    Part.LineSegment(V(-15.1, -4.2, 0), V(-22.6, -4.2, 0)),
    Part.LineSegment(V(-22.6, -4.2, 0), V(-22.6, -2.1, 0)),
    Part.LineSegment(V(-22.6, -2.1, 0), V(-15.1, -2.1, 0)),
    Part.LineSegment(V(-15.1, -2.1, 0), V(-15.1, -4.2, 0)),
], False)
sketch14.addConstraint([
    Sketcher.Constraint("Coincident", 0, 2, 1, 1),
    Sketcher.Constraint("Coincident", 1, 2, 2, 1),
    Sketcher.Constraint("Coincident", 2, 2, 3, 1),
    Sketcher.Constraint("Coincident", 3, 2, 0, 1),
    Sketcher.Constraint("Horizontal", 0),
    Sketcher.Constraint("Vertical", 1),
    Sketcher.Constraint("Horizontal", 2),
    Sketcher.Constraint("Vertical", 3),
    Sketcher.Constraint("DistanceY", 1, 1, 1, 2, Q("2 mm")),
    Sketcher.Constraint("DistanceX", 0, 2, 0, 1, Q("7.5 mm")),
    Sketcher.Constraint("DistanceX", 0, 2, -1, 1, Q("22.6 mm")),
    Sketcher.Constraint("DistanceY", 0, 2, -1, 1, Q("4.15 mm")),
])
pad4 = body.newObject("PartDesign::Pad", "Pad003")
pad4.Profile = sketch14
pad4.Length = 8.1
pad4.Reversed = True

# Sketch on YZ plane
sketch15 = body.newObject("Sketcher::SketchObject", "Sketch014")
sketch15.AttachmentSupport = (doc.getObject("YZ_Plane"), [""])
sketch15.MapMode = "FlatFace"
sketch15.AttachmentOffset = App.Placement(V(0, 0, -28.4), App.Rotation())
sketch15.addGeometry([
    Part.LineSegment(V(-15.1, -2.1, 0), V(-22.6, -2.1, 0)),
    Part.LineSegment(V(-22.6, -2.1, 0), V(-22.6, -4.2, 0)),
    Part.LineSegment(V(-22.6, -4.2, 0), V(-15.1, -4.2, 0)),
    Part.LineSegment(V(-15.1, -4.2, 0), V(-15.1, -2.1, 0)),
], False)
sketch15.addConstraint([
    Sketcher.Constraint("Coincident", 0, 2, 1, 1),
    Sketcher.Constraint("Coincident", 1, 2, 2, 1),
    Sketcher.Constraint("Coincident", 2, 2, 3, 1),
    Sketcher.Constraint("Coincident", 3, 2, 0, 1),
    Sketcher.Constraint("Horizontal", 0),
    Sketcher.Constraint("Vertical", 1),
    Sketcher.Constraint("Horizontal", 2),
    Sketcher.Constraint("Vertical", 3),
    Sketcher.Constraint("DistanceY", 1, 2, 1, 1, Q("2 mm")),
    Sketcher.Constraint("DistanceX", 0, 2, 0, 1, Q("7.5 mm")),
    Sketcher.Constraint("DistanceX", 0, 2, -1, 1, Q("22.6 mm")),
    Sketcher.Constraint("DistanceY", 0, 2, -1, 1, Q("2.15 mm")),
])
pad5 = body.newObject("PartDesign::Pad", "Pad004")
pad5.Profile = sketch15
pad5.Length = 7.5

# Sketch on XZ plane
sketch16 = body.newObject("Sketcher::SketchObject", "Sketch015")
sketch16.AttachmentSupport = (doc.getObject("XZ_Plane"), [""])
sketch16.MapMode = "FlatFace"
sketch16.AttachmentOffset = App.Placement(V(0, 0, 18.85), App.Rotation())
sketch16.addGeometry([
    Part.LineSegment(V(24.4, -2.1, 0), V(24.4, 4.8, 0)),
    Part.LineSegment(V(24.4, 4.8, 0), V(25.6, 4.8, 0)),
    Part.LineSegment(V(25.6, 4.8, 0), V(25.6, -2.1, 0)),
    Part.LineSegment(V(25.6, -2.1, 0), V(24.4, -2.1, 0)),
], False)
sketch16.addGeometry(Part.LineSegment(V(24.4, -2.1, 0), V(24.4, 4.8, 0)), True)  # axis
sketch16.addConstraint([
    Sketcher.Constraint("Coincident", 0, 2, 1, 1),
    Sketcher.Constraint("Coincident", 1, 2, 2, 1),
    Sketcher.Constraint("Coincident", 2, 2, 3, 1),
    Sketcher.Constraint("Coincident", 3, 2, 0, 1),
    Sketcher.Constraint("Vertical", 0),
    Sketcher.Constraint("Horizontal", 1),
    Sketcher.Constraint("Vertical", 2),
    Sketcher.Constraint("Horizontal", 3),
    Sketcher.Constraint("Vertical", 4),
    Sketcher.Constraint("Coincident", 4, 1, 3, 2),
    Sketcher.Constraint("Horizontal", 1, 2, 4, 2),
    Sketcher.Constraint("DistanceY", 0, 1, 0, 2, Q("7 mm")),
    Sketcher.Constraint("DistanceX", 1, 1, 1, 2, Q("1.25 mm")),
    Sketcher.Constraint("DistanceX", -1, 1, 1, 2, Q("25.6 mm")),
    Sketcher.Constraint("DistanceY", -1, 1, 0, 2, Q("4.85 mm")),
])
revolution = body.newObject("PartDesign::Revolution", "Revolution")
revolution.Profile = sketch16
revolution.ReferenceAxis = (sketch16, ["Axis0"])
revolution.Angle = 360

# Sketch on XZ plane
sketch17 = body.newObject("Sketcher::SketchObject", "Sketch016")
sketch17.AttachmentSupport = (doc.getObject("XZ_Plane"), [""])
sketch17.MapMode = "FlatFace"
sketch17.AttachmentOffset = App.Placement(V(0, 0, -39.15), App.Rotation())
sketch17.addGeometry([
    Part.LineSegment(V(24.4, -2.1, 0), V(24.4, 4.8, 0)),
    Part.LineSegment(V(24.4, 4.8, 0), V(25.6, 4.8, 0)),
    Part.LineSegment(V(25.6, 4.8, 0), V(25.6, -2.1, 0)),
    Part.LineSegment(V(25.6, -2.1, 0), V(24.4, -2.1, 0)),
], False)
sketch17.addGeometry(Part.LineSegment(V(24.4, -2.1, 0), V(24.4, 4.8, 0)), True)  # axis
sketch17.addConstraint([
    Sketcher.Constraint("Coincident", 0, 2, 1, 1),
    Sketcher.Constraint("Coincident", 1, 2, 2, 1),
    Sketcher.Constraint("Coincident", 2, 2, 3, 1),
    Sketcher.Constraint("Coincident", 3, 2, 0, 1),
    Sketcher.Constraint("Vertical", 0),
    Sketcher.Constraint("Horizontal", 1),
    Sketcher.Constraint("Vertical", 2),
    Sketcher.Constraint("Horizontal", 3),
    Sketcher.Constraint("Vertical", 4),
    Sketcher.Constraint("Coincident", 4, 1, 3, 2),
    Sketcher.Constraint("Horizontal", 1, 2, 4, 2),
    Sketcher.Constraint("DistanceY", 0, 1, 0, 2, Q("7 mm")),
    Sketcher.Constraint("DistanceX", 1, 1, 1, 2, Q("1.25 mm")),
    Sketcher.Constraint("DistanceX", -1, 1, 1, 2, Q("25.6 mm")),
    Sketcher.Constraint("DistanceY", -1, 1, 0, 2, Q("4.85 mm")),
])
revolution2 = body.newObject("PartDesign::Revolution", "Revolution001")
revolution2.Profile = sketch17
revolution2.ReferenceAxis = (sketch17, ["Axis0"])
revolution2.Angle = 360

# Sketch on XZ plane
sketch18 = body.newObject("Sketcher::SketchObject", "Sketch017")
sketch18.AttachmentSupport = (doc.getObject("XZ_Plane"), [""])
sketch18.MapMode = "FlatFace"
sketch18.AttachmentOffset = App.Placement(V(0, 0, -39.15), App.Rotation())
sketch18.addGeometry([
    Part.LineSegment(V(-24.6, -2.1, 0), V(-24.6, 4.8, 0)),
    Part.LineSegment(V(-24.6, 4.8, 0), V(-23.4, 4.8, 0)),
    Part.LineSegment(V(-23.4, 4.8, 0), V(-23.4, -2.1, 0)),
    Part.LineSegment(V(-23.4, -2.1, 0), V(-24.6, -2.1, 0)),
], False)
sketch18.addGeometry(Part.LineSegment(V(-24.6, -2.1, 0), V(-24.6, 4.8, 0)), True)  # axis
sketch18.addConstraint([
    Sketcher.Constraint("Coincident", 0, 2, 1, 1),
    Sketcher.Constraint("Coincident", 1, 2, 2, 1),
    Sketcher.Constraint("Coincident", 2, 2, 3, 1),
    Sketcher.Constraint("Coincident", 3, 2, 0, 1),
    Sketcher.Constraint("Vertical", 0),
    Sketcher.Constraint("Horizontal", 1),
    Sketcher.Constraint("Vertical", 2),
    Sketcher.Constraint("Horizontal", 3),
    Sketcher.Constraint("Vertical", 4),
    Sketcher.Constraint("Coincident", 4, 1, 3, 2),
    Sketcher.Constraint("Horizontal", 1, 2, 4, 2),
    Sketcher.Constraint("DistanceY", 0, 1, 0, 2, Q("7 mm")),
    Sketcher.Constraint("DistanceX", 1, 1, 1, 2, Q("1.25 mm")),
    Sketcher.Constraint("DistanceX", 1, 2, -1, 1, Q("23.4 mm")),
    Sketcher.Constraint("DistanceY", -1, 1, 0, 2, Q("4.85 mm")),
])
revolution3 = body.newObject("PartDesign::Revolution", "Revolution002")
revolution3.Profile = sketch18
revolution3.ReferenceAxis = (sketch18, ["Axis0"])
revolution3.Angle = 360

# Sketch on XZ plane
sketch19 = body.newObject("Sketcher::SketchObject", "Sketch018")
sketch19.AttachmentSupport = (doc.getObject("XZ_Plane"), [""])
sketch19.MapMode = "FlatFace"
sketch19.AttachmentOffset = App.Placement(V(0, 0, 18.85), App.Rotation())
sketch19.addGeometry([
    Part.LineSegment(V(-24.6, -2.1, 0), V(-24.6, 4.8, 0)),
    Part.LineSegment(V(-24.6, 4.8, 0), V(-23.4, 4.8, 0)),
    Part.LineSegment(V(-23.4, 4.8, 0), V(-23.4, -2.1, 0)),
    Part.LineSegment(V(-23.4, -2.1, 0), V(-24.6, -2.1, 0)),
], False)
sketch19.addGeometry(Part.LineSegment(V(-24.6, -2.1, 0), V(-24.6, 4.8, 0)), True)  # axis
sketch19.addConstraint([
    Sketcher.Constraint("Coincident", 0, 2, 1, 1),
    Sketcher.Constraint("Coincident", 1, 2, 2, 1),
    Sketcher.Constraint("Coincident", 2, 2, 3, 1),
    Sketcher.Constraint("Coincident", 3, 2, 0, 1),
    Sketcher.Constraint("Vertical", 0),
    Sketcher.Constraint("Horizontal", 1),
    Sketcher.Constraint("Vertical", 2),
    Sketcher.Constraint("Horizontal", 3),
    Sketcher.Constraint("Vertical", 4),
    Sketcher.Constraint("Coincident", 4, 1, 3, 2),
    Sketcher.Constraint("Horizontal", 1, 2, 4, 2),
    Sketcher.Constraint("DistanceY", 0, 1, 0, 2, Q("7 mm")),
    Sketcher.Constraint("DistanceX", 1, 1, 1, 2, Q("1.25 mm")),
    Sketcher.Constraint("DistanceX", 1, 2, -1, 1, Q("23.4 mm")),
    Sketcher.Constraint("DistanceY", -1, 1, 0, 2, Q("4.85 mm")),
])
revolution4 = body.newObject("PartDesign::Revolution", "Revolution003")
revolution4.Profile = sketch19
revolution4.ReferenceAxis = (sketch19, ["Axis0"])
revolution4.Angle = 360
doc.recompute()

fillet = body.newObject("PartDesign::Fillet", "Fillet")
fillet.Base = (revolution4, edges_at(revolution4, [
    (30, -44.5, 0),
    (-30, -44.5, 0),
    (-30, 44.5, 0),
    (30, 44.5, 0),
]))
fillet.Radius = 2
doc.recompute()

chamfer = body.newObject("PartDesign::Chamfer", "Chamfer")
chamfer.Base = (fillet, edges_at(fillet, [
    (23.1, -18.85, 4.85),
    (23.1, 39.15, 4.85),
    (-25.9, 39.15, 4.85),
    (-25.9, -18.85, 4.85),
]))
chamfer.Size = 0.3
doc.recompute()

fillet2 = body.newObject("PartDesign::Fillet", "Fillet001")
fillet2.Base = (chamfer, edges_at(chamfer, [
    (-17.75, 44.5, -5.75),
    (30, 0, -5.75),
    (17.75, 44.5, -5.75),
    (0, -44.5, -5.75),
    (-30, 0, -5.75),
    (-29.414, -43.914, -5.75),
    (29.414, -43.914, -5.75),
    (-29.414, 43.914, -5.75),
    (29.414, 43.914, -5.75),
]))
fillet2.Radius = 0.5
doc.recompute()

fillet3 = body.newObject("PartDesign::Fillet", "Fillet002")
fillet3.Base = (fillet2, edges_at(fillet2, [
    (-28.4, 35.4, -3.15),
    (-20.9, 35.4, -3.15),
    (-20.9, 42.9, -3.15),
    (20.9, 42.9, -3.15),
    (20.9, 35.4, -3.15),
    (28.4, 35.4, -3.15),
    (28.4, -22.6, -3.15),
    (28.4, -15.1, -3.15),
    (20.3, -22.6, -3.15),
    (20.3, -15.1, -3.15),
    (-28.4, -22.6, -3.15),
    (-28.4, -15.1, -3.15),
    (-20.9, -22.6, -3.15),
    (-20.9, -15.1, -3.15),
]))
fillet3.Radius = 2.5

doc.recompute()
